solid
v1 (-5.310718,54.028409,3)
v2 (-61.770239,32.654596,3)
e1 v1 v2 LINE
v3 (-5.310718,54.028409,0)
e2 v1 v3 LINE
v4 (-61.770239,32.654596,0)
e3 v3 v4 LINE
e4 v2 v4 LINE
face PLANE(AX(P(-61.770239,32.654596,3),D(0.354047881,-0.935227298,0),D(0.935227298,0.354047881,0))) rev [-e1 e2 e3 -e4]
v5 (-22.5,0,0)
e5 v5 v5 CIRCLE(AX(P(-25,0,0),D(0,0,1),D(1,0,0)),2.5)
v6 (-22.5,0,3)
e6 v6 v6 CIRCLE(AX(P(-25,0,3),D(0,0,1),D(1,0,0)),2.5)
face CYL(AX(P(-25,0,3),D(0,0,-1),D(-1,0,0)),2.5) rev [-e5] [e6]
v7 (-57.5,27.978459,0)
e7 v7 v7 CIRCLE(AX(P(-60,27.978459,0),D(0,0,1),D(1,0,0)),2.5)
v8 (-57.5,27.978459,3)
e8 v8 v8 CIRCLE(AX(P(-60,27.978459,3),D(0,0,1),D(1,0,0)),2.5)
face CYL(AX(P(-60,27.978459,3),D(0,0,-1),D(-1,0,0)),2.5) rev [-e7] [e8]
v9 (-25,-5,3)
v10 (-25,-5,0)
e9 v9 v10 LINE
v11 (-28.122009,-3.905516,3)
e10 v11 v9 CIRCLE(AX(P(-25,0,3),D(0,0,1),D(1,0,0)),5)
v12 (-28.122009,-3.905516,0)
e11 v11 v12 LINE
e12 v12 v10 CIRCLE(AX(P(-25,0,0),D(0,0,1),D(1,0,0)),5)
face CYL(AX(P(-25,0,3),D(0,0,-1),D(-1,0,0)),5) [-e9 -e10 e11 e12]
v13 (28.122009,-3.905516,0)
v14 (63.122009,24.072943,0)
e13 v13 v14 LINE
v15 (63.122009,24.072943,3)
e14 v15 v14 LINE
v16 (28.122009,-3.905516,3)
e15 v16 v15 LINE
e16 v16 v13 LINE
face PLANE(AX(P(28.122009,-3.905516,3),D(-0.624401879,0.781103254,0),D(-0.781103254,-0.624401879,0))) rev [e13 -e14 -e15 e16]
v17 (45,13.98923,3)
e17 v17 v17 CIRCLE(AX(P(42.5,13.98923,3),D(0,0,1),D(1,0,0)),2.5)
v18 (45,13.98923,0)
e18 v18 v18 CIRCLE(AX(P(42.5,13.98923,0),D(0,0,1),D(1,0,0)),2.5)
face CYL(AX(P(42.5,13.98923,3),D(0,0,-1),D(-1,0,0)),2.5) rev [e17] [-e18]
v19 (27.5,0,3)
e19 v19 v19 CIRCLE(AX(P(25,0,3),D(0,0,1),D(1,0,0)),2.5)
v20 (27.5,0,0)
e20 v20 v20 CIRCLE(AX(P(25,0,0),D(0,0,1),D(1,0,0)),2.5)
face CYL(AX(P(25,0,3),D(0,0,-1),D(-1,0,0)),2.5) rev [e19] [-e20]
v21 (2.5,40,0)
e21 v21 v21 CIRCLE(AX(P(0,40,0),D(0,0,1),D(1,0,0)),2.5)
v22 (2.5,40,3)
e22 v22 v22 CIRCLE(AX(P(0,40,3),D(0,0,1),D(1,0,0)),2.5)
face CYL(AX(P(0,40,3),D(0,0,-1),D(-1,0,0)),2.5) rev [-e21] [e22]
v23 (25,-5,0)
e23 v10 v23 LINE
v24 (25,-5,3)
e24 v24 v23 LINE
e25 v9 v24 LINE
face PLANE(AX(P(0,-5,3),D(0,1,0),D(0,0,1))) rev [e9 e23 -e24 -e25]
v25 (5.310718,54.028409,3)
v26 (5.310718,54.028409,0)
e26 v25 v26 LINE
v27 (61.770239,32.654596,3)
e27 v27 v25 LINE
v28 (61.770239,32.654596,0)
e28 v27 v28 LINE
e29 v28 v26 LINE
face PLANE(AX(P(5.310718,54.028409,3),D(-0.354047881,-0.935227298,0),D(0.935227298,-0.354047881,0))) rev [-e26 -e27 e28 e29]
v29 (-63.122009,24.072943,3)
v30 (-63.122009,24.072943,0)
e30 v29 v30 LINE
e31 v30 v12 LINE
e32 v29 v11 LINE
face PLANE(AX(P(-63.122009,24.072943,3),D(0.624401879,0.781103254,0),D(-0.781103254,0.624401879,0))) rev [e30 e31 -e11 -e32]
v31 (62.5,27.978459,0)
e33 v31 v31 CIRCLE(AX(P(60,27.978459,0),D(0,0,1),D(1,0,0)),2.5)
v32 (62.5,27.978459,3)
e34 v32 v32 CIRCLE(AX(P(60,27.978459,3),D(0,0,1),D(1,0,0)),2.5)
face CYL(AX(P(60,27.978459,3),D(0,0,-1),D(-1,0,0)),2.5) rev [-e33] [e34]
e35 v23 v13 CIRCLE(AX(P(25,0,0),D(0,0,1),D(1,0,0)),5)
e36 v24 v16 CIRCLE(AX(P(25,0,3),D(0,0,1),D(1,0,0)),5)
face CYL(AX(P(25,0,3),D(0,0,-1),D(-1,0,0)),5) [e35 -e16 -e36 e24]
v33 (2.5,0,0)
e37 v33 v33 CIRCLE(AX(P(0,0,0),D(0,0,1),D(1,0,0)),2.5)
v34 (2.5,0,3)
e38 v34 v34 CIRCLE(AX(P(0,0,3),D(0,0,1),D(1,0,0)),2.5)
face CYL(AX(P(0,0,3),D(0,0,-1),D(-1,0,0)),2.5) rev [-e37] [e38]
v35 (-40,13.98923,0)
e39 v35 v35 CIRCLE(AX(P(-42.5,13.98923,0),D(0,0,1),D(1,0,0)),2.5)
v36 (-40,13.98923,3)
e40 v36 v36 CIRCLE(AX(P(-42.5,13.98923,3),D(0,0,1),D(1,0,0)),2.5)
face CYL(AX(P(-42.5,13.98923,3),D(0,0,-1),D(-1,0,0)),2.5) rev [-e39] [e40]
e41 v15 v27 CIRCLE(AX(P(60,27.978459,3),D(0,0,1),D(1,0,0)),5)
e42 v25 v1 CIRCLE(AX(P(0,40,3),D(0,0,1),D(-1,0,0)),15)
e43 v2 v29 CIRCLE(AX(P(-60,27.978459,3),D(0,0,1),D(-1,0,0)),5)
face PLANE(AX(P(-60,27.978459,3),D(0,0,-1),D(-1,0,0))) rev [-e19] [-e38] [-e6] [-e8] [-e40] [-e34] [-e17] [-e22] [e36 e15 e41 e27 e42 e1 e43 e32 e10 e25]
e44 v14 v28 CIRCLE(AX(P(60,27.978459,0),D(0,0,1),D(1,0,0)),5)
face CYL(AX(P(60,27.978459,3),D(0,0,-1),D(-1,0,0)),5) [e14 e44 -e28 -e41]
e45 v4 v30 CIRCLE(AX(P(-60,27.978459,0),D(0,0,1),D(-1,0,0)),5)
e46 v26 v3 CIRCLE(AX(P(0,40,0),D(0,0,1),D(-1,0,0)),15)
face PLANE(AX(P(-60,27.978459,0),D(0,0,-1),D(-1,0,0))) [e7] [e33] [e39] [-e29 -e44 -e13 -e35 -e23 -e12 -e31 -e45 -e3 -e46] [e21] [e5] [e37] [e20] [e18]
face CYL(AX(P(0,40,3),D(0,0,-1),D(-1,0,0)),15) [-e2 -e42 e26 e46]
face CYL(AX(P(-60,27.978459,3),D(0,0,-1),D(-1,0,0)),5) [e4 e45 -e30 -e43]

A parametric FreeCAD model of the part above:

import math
import FreeCAD as App
import Part
import Sketcher

doc = App.newDocument("Part")
body = doc.addObject("PartDesign::Body", "Body")

# Sketch on XY plane
sketch1 = body.newObject("Sketcher::SketchObject", "Sketch")
sketch1.AttachmentSupport = (doc.getObject("XY_Plane"), [""])
sketch1.MapMode = "FlatFace"
sketch1.addGeometry(Part.LineSegment(App.Vector(-5.310718, 54.028409, 0), App.Vector(-61.770239, 32.654596, 0)), False)
sketch1.addGeometry(Part.ArcOfCircle(Part.Circle(App.Vector(-60, 27.978459, 0), App.Vector(0, 0, 1), 5), math.radians(110.735102), math.radians(231.3617)), False)
sketch1.addGeometry(Part.LineSegment(App.Vector(-63.122009, 24.072943, 0), App.Vector(-28.122009, -3.905516, 0)), False)
sketch1.addGeometry(Part.ArcOfCircle(Part.Circle(App.Vector(-25, 0, 0), App.Vector(0, 0, 1), 5), math.radians(-128.6383), math.radians(-90)), False)
sketch1.addGeometry(Part.LineSegment(App.Vector(-25, -5, 0), App.Vector(25, -5, 0)), False)
sketch1.addGeometry(Part.ArcOfCircle(Part.Circle(App.Vector(25, 0, 0), App.Vector(0, 0, 1), 5), math.radians(-90), math.radians(-51.3617)), False)
sketch1.addGeometry(Part.LineSegment(App.Vector(28.122009, -3.905516, 0), App.Vector(63.122009, 24.072943, 0)), False)
sketch1.addGeometry(Part.ArcOfCircle(Part.Circle(App.Vector(60, 27.978459, 0), App.Vector(0, 0, 1), 5), math.radians(-51.3617), math.radians(69.264898)), False)
sketch1.addGeometry(Part.LineSegment(App.Vector(61.770239, 32.654596, 0), App.Vector(5.310718, 54.028409, 0)), False)
sketch1.addGeometry(Part.ArcOfCircle(Part.Circle(App.Vector(0, 40, 0), App.Vector(0, 0, 1), 15), math.radians(69.264898), math.radians(110.735102)), False)
sketch1.addGeometry(Part.Circle(App.Vector(25, 0, 0), App.Vector(0, 0, 1), 2.5), False)
sketch1.addGeometry(Part.Circle(App.Vector(42.5, 13.98923, 0), App.Vector(0, 0, 1), 2.5), False)
sketch1.addGeometry(Part.Circle(App.Vector(0, 0, 0), App.Vector(0, 0, 1), 2.5), False)
sketch1.addGeometry(Part.Circle(App.Vector(-25, 0, 0), App.Vector(0, 0, 1), 2.5), False)
sketch1.addGeometry(Part.Circle(App.Vector(-42.5, 13.98923, 0), App.Vector(0, 0, 1), 2.5), False)
sketch1.addGeometry(Part.Circle(App.Vector(60, 27.978459, 0), App.Vector(0, 0, 1), 2.5), False)
sketch1.addGeometry(Part.Circle(App.Vector(-60, 27.978459, 0), App.Vector(0, 0, 1), 2.5), False)
sketch1.addGeometry(Part.Circle(App.Vector(0, 40, 0), App.Vector(0, 0, 1), 2.5), False)
sketch1.addConstraint(Sketcher.Constraint("Tangent", 0, 2, 1, 1))
sketch1.addConstraint(Sketcher.Constraint("Tangent", 1, 2, 2, 1))
sketch1.addConstraint(Sketcher.Constraint("Tangent", 2, 2, 3, 1))
sketch1.addConstraint(Sketcher.Constraint("Tangent", 3, 2, 4, 1))
sketch1.addConstraint(Sketcher.Constraint("Tangent", 4, 2, 5, 1))
sketch1.addConstraint(Sketcher.Constraint("Tangent", 5, 2, 6, 1))
sketch1.addConstraint(Sketcher.Constraint("Tangent", 6, 2, 7, 1))
sketch1.addConstraint(Sketcher.Constraint("Tangent", 7, 2, 8, 1))
sketch1.addConstraint(Sketcher.Constraint("Tangent", 8, 2, 9, 1))
sketch1.addConstraint(Sketcher.Constraint("Tangent", 9, 2, 0, 1))
sketch1.addConstraint(Sketcher.Constraint("Horizontal", 4))
sketch1.addConstraint(Sketcher.Constraint("Coincident", 12, 3, -1, 1))
sketch1.addConstraint(Sketcher.Constraint("Coincident", 10, 3, 5, 3))
sketch1.addConstraint(Sketcher.Constraint("Coincident", 13, 3, 3, 3))
sketch1.addConstraint(Sketcher.Constraint("Coincident", 15, 3, 7, 3))
sketch1.addConstraint(Sketcher.Constraint("Coincident", 16, 3, 1, 3))
sketch1.addConstraint(Sketcher.Constraint("Coincident", 17, 3, 9, 3))
sketch1.addConstraint(Sketcher.Constraint("Equal", 1, 3))
sketch1.addConstraint(Sketcher.Constraint("Equal", 3, 5))
sketch1.addConstraint(Sketcher.Constraint("Equal", 5, 7))
sketch1.addConstraint(Sketcher.Constraint("Equal", 10, 11))
sketch1.addConstraint(Sketcher.Constraint("Equal", 11, 12))
sketch1.addConstraint(Sketcher.Constraint("Equal", 12, 13))
sketch1.addConstraint(Sketcher.Constraint("Equal", 13, 14))
sketch1.addConstraint(Sketcher.Constraint("Equal", 14, 15))
sketch1.addConstraint(Sketcher.Constraint("Equal", 15, 16))
sketch1.addConstraint(Sketcher.Constraint("Equal", 16, 17))
sketch1.addConstraint(Sketcher.Constraint("Symmetric", 3, 3, 5, 3, -1, 1))
sketch1.addConstraint(Sketcher.Constraint("Symmetric", 1, 3, 7, 3, -2))
sketch1.addConstraint(Sketcher.Constraint("Symmetric", 11, 3, 14, 3, -2))
sketch1.addConstraint(Sketcher.Constraint("PointOnObject", 9, 3, -2))
sketch1.addConstraint(Sketcher.Constraint("Diameter", 10, 5.0))
sketch1.addConstraint(Sketcher.Constraint("Radius", 1, 5.0))
sketch1.addConstraint(Sketcher.Constraint("Radius", 9, 15.0))
sketch1.addConstraint(Sketcher.Constraint("DistanceX", 4, 1, 4, 2, 50.0))
sketch1.addConstraint(Sketcher.Constraint("DistanceX", 1, 3, -1, 1, 60.0))
sketch1.addConstraint(Sketcher.Constraint("DistanceY", -1, 1, 9, 3, 40.0))
sketch1.addConstraint(Sketcher.Constraint("DistanceX", -1, 1, 11, 3, 42.5))
sketch1.addConstraint(Sketcher.Constraint("Distance", 0, 60.369839))
sketch1.addConstraint(Sketcher.Constraint("DistanceY", -1, 1, 11, 3, 13.98923))
pad1 = body.newObject("PartDesign::Pad", "Pad")
pad1.Profile = sketch1
pad1.Length = 3

doc.recompute()
